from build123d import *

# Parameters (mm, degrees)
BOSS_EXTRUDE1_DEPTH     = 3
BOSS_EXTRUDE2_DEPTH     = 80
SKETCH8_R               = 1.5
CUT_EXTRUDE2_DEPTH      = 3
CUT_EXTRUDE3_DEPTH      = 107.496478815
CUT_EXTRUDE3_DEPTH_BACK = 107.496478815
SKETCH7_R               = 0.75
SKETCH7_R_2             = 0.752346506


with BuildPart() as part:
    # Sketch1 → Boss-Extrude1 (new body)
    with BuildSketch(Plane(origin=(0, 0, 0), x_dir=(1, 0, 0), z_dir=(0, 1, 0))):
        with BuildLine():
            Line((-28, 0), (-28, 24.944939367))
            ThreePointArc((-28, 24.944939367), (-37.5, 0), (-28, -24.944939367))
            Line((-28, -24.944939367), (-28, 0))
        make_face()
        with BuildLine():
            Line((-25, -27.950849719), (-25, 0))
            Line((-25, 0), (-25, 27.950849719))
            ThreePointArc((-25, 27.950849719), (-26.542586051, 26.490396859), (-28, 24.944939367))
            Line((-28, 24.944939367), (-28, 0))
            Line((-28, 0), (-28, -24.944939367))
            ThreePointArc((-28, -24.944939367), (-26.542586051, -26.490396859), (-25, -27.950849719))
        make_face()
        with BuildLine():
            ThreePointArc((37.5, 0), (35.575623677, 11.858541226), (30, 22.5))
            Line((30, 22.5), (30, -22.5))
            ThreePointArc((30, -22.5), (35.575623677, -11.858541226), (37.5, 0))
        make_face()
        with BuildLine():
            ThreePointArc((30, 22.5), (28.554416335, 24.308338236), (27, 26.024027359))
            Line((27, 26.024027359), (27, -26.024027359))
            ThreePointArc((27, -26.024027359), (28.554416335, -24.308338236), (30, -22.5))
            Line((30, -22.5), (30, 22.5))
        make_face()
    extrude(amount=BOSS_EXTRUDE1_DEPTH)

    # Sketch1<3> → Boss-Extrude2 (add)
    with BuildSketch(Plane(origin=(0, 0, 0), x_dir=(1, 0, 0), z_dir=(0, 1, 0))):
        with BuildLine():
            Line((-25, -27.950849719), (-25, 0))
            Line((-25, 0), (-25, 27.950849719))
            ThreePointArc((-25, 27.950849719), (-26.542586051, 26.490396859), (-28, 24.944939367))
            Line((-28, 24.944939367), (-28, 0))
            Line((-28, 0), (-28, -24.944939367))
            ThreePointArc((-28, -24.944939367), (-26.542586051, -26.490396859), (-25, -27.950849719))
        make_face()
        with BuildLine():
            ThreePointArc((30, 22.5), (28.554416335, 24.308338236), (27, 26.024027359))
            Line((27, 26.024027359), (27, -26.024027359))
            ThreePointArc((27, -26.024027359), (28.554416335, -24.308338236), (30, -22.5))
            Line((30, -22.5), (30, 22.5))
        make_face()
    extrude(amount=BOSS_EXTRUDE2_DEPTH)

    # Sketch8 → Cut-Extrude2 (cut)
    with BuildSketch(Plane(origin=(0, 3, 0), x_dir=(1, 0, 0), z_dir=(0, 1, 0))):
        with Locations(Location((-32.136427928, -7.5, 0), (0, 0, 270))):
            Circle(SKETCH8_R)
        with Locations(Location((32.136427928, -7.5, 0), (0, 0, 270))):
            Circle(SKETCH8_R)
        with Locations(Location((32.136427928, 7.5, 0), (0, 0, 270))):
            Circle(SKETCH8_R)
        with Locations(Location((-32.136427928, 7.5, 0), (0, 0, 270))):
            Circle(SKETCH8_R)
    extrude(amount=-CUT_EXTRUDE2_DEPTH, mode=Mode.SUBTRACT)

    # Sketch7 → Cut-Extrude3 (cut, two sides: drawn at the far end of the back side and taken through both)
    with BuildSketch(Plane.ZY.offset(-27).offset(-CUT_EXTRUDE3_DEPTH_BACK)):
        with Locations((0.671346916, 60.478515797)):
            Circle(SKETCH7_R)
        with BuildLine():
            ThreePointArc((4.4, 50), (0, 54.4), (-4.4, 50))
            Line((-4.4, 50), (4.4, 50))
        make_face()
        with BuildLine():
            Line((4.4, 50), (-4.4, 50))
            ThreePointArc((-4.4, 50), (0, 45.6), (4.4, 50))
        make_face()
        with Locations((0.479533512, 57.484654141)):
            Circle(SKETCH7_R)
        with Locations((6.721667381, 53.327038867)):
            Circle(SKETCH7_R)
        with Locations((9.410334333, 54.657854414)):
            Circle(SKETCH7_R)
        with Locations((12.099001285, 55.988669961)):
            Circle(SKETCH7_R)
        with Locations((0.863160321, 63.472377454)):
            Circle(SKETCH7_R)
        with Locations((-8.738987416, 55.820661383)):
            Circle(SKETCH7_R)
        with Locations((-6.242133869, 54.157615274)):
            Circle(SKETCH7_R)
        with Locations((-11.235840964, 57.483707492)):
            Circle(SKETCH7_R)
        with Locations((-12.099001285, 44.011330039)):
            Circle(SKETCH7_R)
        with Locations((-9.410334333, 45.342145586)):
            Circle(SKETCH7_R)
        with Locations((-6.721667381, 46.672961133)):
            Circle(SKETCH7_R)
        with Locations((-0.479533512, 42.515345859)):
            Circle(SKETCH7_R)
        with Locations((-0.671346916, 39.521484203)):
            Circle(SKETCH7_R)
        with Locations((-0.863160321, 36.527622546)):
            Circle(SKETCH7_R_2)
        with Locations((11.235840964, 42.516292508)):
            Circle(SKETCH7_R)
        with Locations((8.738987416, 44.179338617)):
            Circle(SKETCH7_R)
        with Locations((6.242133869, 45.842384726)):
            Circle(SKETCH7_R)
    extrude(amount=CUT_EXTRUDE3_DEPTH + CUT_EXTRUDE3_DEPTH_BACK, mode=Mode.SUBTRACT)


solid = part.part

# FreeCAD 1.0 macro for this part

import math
import FreeCAD as App
import Part
import Sketcher

doc = App.newDocument("Part")
body = doc.addObject("PartDesign::Body", "Body")
body.AllowCompound = True

sketch1 = body.newObject("Sketcher::SketchObject", "Sketch")
sketch1.AttachmentSupport = (doc.getObject("XZ_Plane"), [""])
sketch1.MapMode = "FlatFace"
sketch1.addGeometry(Part.ArcOfCircle(Part.Circle(App.Vector(0, 0, 0), App.Vector(0, 0, 1), 37.5), math.radians(138.302453), math.radians(221.697547)), False)
sketch1.addGeometry(Part.ArcOfCircle(Part.Circle(App.Vector(0, 0, 0), App.Vector(0, 0, 1), 37.5), math.radians(131.810315), math.radians(138.302453)), False)
sketch1.addGeometry(Part.LineSegment(App.Vector(-25, 27.95085, 0), App.Vector(-25, -27.95085, 0)), False)
sketch1.addGeometry(Part.ArcOfCircle(Part.Circle(App.Vector(0, 0, 0), App.Vector(0, 0, 1), 37.5), math.radians(-138.302453), math.radians(-131.810315)), False)
sketch1.addGeometry(Part.ArcOfCircle(Part.Circle(App.Vector(0, 0, 0), App.Vector(0, 0, 1), 37.5), math.radians(-36.869898), math.radians(0)), False)
sketch1.addGeometry(Part.ArcOfCircle(Part.Circle(App.Vector(0, 0, 0), App.Vector(0, 0, 1), 37.5), math.radians(-43.94552), math.radians(-36.869898)), False)
sketch1.addGeometry(Part.LineSegment(App.Vector(27, -26.024027, 0), App.Vector(27, 26.024027, 0)), False)
sketch1.addGeometry(Part.ArcOfCircle(Part.Circle(App.Vector(0, 0, 0), App.Vector(0, 0, 1), 37.5), math.radians(36.869898), math.radians(43.94552)), False)
sketch1.addGeometry(Part.ArcOfCircle(Part.Circle(App.Vector(0, 0, 0), App.Vector(0, 0, 1), 37.5), math.radians(0), math.radians(36.869898)), False)
sketch1.addConstraint(Sketcher.Constraint("Tangent", 0, 1, 1, 2))
sketch1.addConstraint(Sketcher.Constraint("Coincident", 1, 1, 2, 1))
sketch1.addConstraint(Sketcher.Constraint("Coincident", 2, 2, 3, 2))
sketch1.addConstraint(Sketcher.Constraint("Tangent", 3, 1, 0, 2))
sketch1.addConstraint(Sketcher.Constraint("Tangent", 4, 1, 5, 2))
sketch1.addConstraint(Sketcher.Constraint("Coincident", 5, 1, 6, 1))
sketch1.addConstraint(Sketcher.Constraint("Coincident", 6, 2, 7, 2))
sketch1.addConstraint(Sketcher.Constraint("Tangent", 7, 1, 8, 2))
sketch1.addConstraint(Sketcher.Constraint("Tangent", 8, 1, 4, 2))
sketch1.addConstraint(Sketcher.Constraint("Vertical", 2))
sketch1.addConstraint(Sketcher.Constraint("Vertical", 6))
sketch1.addConstraint(Sketcher.Constraint("Coincident", 0, 3, -1, 1))
sketch1.addConstraint(Sketcher.Constraint("Coincident", 4, 3, -1, 1))
sketch1.addConstraint(Sketcher.Constraint("Coincident", 7, 3, -1, 1))
sketch1.addConstraint(Sketcher.Constraint("Equal", 0, 1))
sketch1.addConstraint(Sketcher.Constraint("Equal", 1, 3))
sketch1.addConstraint(Sketcher.Constraint("Equal", 3, 4))
sketch1.addConstraint(Sketcher.Constraint("Equal", 4, 5))
sketch1.addConstraint(Sketcher.Constraint("PointOnObject", 8, 1, -1))
sketch1.addConstraint(Sketcher.Constraint("Vertical", 0, 1, 3, 1))
sketch1.addConstraint(Sketcher.Constraint("Vertical", 4, 1, 7, 1))
sketch1.addConstraint(Sketcher.Constraint("Radius", 0, 37.5))
sketch1.addConstraint(Sketcher.Constraint("DistanceX", 0, 1, -1, 1, 28.0))
sketch1.addConstraint(Sketcher.Constraint("DistanceX", 1, 1, -1, 1, 25.0))
sketch1.addConstraint(Sketcher.Constraint("DistanceX", -1, 1, 4, 1, 30.0))
sketch1.addConstraint(Sketcher.Constraint("DistanceX", -1, 1, 5, 1, 27.0))
pad1 = body.newObject("PartDesign::Pad", "Pad")
pad1.Profile = sketch1
pad1.Length = 3
pad1.Reversed = True

sketch2 = body.newObject("Sketcher::SketchObject", "Sketch001")
sketch2.AttachmentSupport = (doc.getObject("XZ_Plane"), [""])
sketch2.MapMode = "FlatFace"
sketch2.addGeometry(Part.LineSegment(App.Vector(-25, 27.95085, 0), App.Vector(-25, -27.95085, 0)), False)
sketch2.addGeometry(Part.ArcOfCircle(Part.Circle(App.Vector(0, 0, 0), App.Vector(0, 0, 1), 37.5), math.radians(-138.302453), math.radians(-131.810315)), False)
sketch2.addGeometry(Part.LineSegment(App.Vector(-28, -24.944939, 0), App.Vector(-28, 24.944939, 0)), False)
sketch2.addGeometry(Part.ArcOfCircle(Part.Circle(App.Vector(0, 0, 0), App.Vector(0, 0, 1), 37.5), math.radians(131.810315), math.radians(138.302453)), False)
sketch2.addGeometry(Part.ArcOfCircle(Part.Circle(App.Vector(0, 0, 0), App.Vector(0, 0, 1), 37.5), math.radians(-43.94552), math.radians(-36.869898)), False)
sketch2.addGeometry(Part.LineSegment(App.Vector(27, -26.024027, 0), App.Vector(27, 26.024027, 0)), False)
sketch2.addGeometry(Part.ArcOfCircle(Part.Circle(App.Vector(0, 0, 0), App.Vector(0, 0, 1), 37.5), math.radians(36.869898), math.radians(43.94552)), False)
sketch2.addGeometry(Part.LineSegment(App.Vector(30, 22.5, 0), App.Vector(30, -22.5, 0)), False)
sketch2.addConstraint(Sketcher.Constraint("Coincident", 0, 2, 1, 2))
sketch2.addConstraint(Sketcher.Constraint("Coincident", 1, 1, 2, 1))
sketch2.addConstraint(Sketcher.Constraint("Coincident", 2, 2, 3, 2))
sketch2.addConstraint(Sketcher.Constraint("Coincident", 3, 1, 0, 1))
sketch2.addConstraint(Sketcher.Constraint("Coincident", 4, 1, 5, 1))
sketch2.addConstraint(Sketcher.Constraint("Coincident", 5, 2, 6, 2))
sketch2.addConstraint(Sketcher.Constraint("Coincident", 6, 1, 7, 1))
sketch2.addConstraint(Sketcher.Constraint("Coincident", 7, 2, 4, 2))
sketch2.addConstraint(Sketcher.Constraint("Vertical", 0))
sketch2.addConstraint(Sketcher.Constraint("Vertical", 2))
sketch2.addConstraint(Sketcher.Constraint("Vertical", 5))
sketch2.addConstraint(Sketcher.Constraint("Vertical", 7))
sketch2.addConstraint(Sketcher.Constraint("Coincident", 1, 3, -1, 1))
sketch2.addConstraint(Sketcher.Constraint("Coincident", 3, 3, -1, 1))
sketch2.addConstraint(Sketcher.Constraint("Coincident", 4, 3, -1, 1))
sketch2.addConstraint(Sketcher.Constraint("Coincident", 6, 3, -1, 1))
sketch2.addConstraint(Sketcher.Constraint("Equal", 1, 3))
sketch2.addConstraint(Sketcher.Constraint("Equal", 3, 4))
sketch2.addConstraint(Sketcher.Constraint("Equal", 4, 6))
sketch2.addConstraint(Sketcher.Constraint("Radius", 1, 37.5))
sketch2.addConstraint(Sketcher.Constraint("DistanceY", 7, 2, 7, 1, 45.0))
sketch2.addConstraint(Sketcher.Constraint("DistanceX", 0, 2, -1, 1, 25.0))
sketch2.addConstraint(Sketcher.Constraint("DistanceX", 1, 1, -1, 1, 28.0))
sketch2.addConstraint(Sketcher.Constraint("DistanceX", -1, 1, 4, 1, 27.0))
pad2 = body.newObject("PartDesign::Pad", "Pad001")
pad2.Profile = sketch2
pad2.Length = 80
pad2.Reversed = True

sketch3 = body.newObject("Sketcher::SketchObject", "Sketch002")
sketch3.AttachmentSupport = (doc.getObject("XZ_Plane"), [""])
sketch3.MapMode = "FlatFace"
sketch3.AttachmentOffset = App.Placement(App.Vector(0, 0, -3), App.Rotation())
sketch3.addGeometry(Part.Circle(App.Vector(-32.136428, 7.5, 0), App.Vector(0, 0, 1), 1.5), False)
sketch3.addGeometry(Part.Circle(App.Vector(32.136428, 7.5, 0), App.Vector(0, 0, 1), 1.5), False)
sketch3.addGeometry(Part.Circle(App.Vector(32.136428, -7.5, 0), App.Vector(0, 0, 1), 1.5), False)
sketch3.addGeometry(Part.Circle(App.Vector(-32.136428, -7.5, 0), App.Vector(0, 0, 1), 1.5), False)
sketch3.addConstraint(Sketcher.Constraint("Equal", 0, 1))
sketch3.addConstraint(Sketcher.Constraint("Equal", 1, 2))
sketch3.addConstraint(Sketcher.Constraint("Equal", 2, 3))
sketch3.addConstraint(Sketcher.Constraint("Symmetric", 0, 3, 2, 3, -1, 1))
sketch3.addConstraint(Sketcher.Constraint("Symmetric", 1, 3, 3, 3, -1, 1))
sketch3.addConstraint(Sketcher.Constraint("Symmetric", 0, 3, 1, 3, -2))
sketch3.addConstraint(Sketcher.Constraint("Diameter", 0, 3.0))
sketch3.addConstraint(Sketcher.Constraint("DistanceY", 2, 3, 1, 3, 15.0))
sketch3.addConstraint(Sketcher.Constraint("DistanceX", 0, 3, -1, 1, 32.136428))
pocket1 = body.newObject("PartDesign::Pocket", "Pocket")
pocket1.Profile = sketch3
pocket1.Length = 3
pocket1.Reversed = True

sketch4 = body.newObject("Sketcher::SketchObject", "Sketch003")
sketch4.AttachmentSupport = (doc.getObject("YZ_Plane"), [""])
sketch4.MapMode = "FlatFace"
sketch4.AttachmentOffset = App.Placement(App.Vector(0, 0, 27), App.Rotation())
sketch4.addGeometry(Part.Circle(App.Vector(60.478516, 0.671347, 0), App.Vector(0, 0, 1), 0.75), False)
sketch4.addGeometry(Part.Circle(App.Vector(50, 0, 0), App.Vector(0, 0, 1), 4.4), False)
sketch4.addGeometry(Part.Circle(App.Vector(57.484654, 0.479534, 0), App.Vector(0, 0, 1), 0.75), False)
sketch4.addGeometry(Part.Circle(App.Vector(53.327039, 6.721667, 0), App.Vector(0, 0, 1), 0.75), False)
sketch4.addGeometry(Part.Circle(App.Vector(54.657854, 9.410334, 0), App.Vector(0, 0, 1), 0.75), False)
sketch4.addGeometry(Part.Circle(App.Vector(55.98867, 12.099001, 0), App.Vector(0, 0, 1), 0.75), False)
sketch4.addGeometry(Part.Circle(App.Vector(63.472377, 0.86316, 0), App.Vector(0, 0, 1), 0.75), False)
sketch4.addGeometry(Part.Circle(App.Vector(55.820661, -8.738987, 0), App.Vector(0, 0, 1), 0.75), False)
sketch4.addGeometry(Part.Circle(App.Vector(54.157615, -6.242134, 0), App.Vector(0, 0, 1), 0.75), False)
sketch4.addGeometry(Part.Circle(App.Vector(57.483707, -11.235841, 0), App.Vector(0, 0, 1), 0.75), False)
sketch4.addGeometry(Part.Circle(App.Vector(44.01133, -12.099001, 0), App.Vector(0, 0, 1), 0.75), False)
sketch4.addGeometry(Part.Circle(App.Vector(45.342146, -9.410334, 0), App.Vector(0, 0, 1), 0.75), False)
sketch4.addGeometry(Part.Circle(App.Vector(46.672961, -6.721667, 0), App.Vector(0, 0, 1), 0.75), False)
sketch4.addGeometry(Part.Circle(App.Vector(42.515346, -0.479534, 0), App.Vector(0, 0, 1), 0.75), False)
sketch4.addGeometry(Part.Circle(App.Vector(39.521484, -0.671347, 0), App.Vector(0, 0, 1), 0.75), False)
sketch4.addGeometry(Part.Circle(App.Vector(36.527623, -0.86316, 0), App.Vector(0, 0, 1), 0.752347), False)
sketch4.addGeometry(Part.Circle(App.Vector(42.516293, 11.235841, 0), App.Vector(0, 0, 1), 0.75), False)
sketch4.addGeometry(Part.Circle(App.Vector(44.179339, 8.738987, 0), App.Vector(0, 0, 1), 0.75), False)
sketch4.addGeometry(Part.Circle(App.Vector(45.842385, 6.242134, 0), App.Vector(0, 0, 1), 0.75), False)
sketch4.addConstraint(Sketcher.Constraint("Equal", 0, 2))
sketch4.addConstraint(Sketcher.Constraint("Equal", 2, 3))
sketch4.addConstraint(Sketcher.Constraint("Equal", 3, 4))
sketch4.addConstraint(Sketcher.Constraint("Equal", 4, 5))
sketch4.addConstraint(Sketcher.Constraint("Equal", 5, 6))
sketch4.addConstraint(Sketcher.Constraint("Equal", 6, 7))
sketch4.addConstraint(Sketcher.Constraint("Equal", 7, 8))
sketch4.addConstraint(Sketcher.Constraint("Equal", 8, 9))
sketch4.addConstraint(Sketcher.Constraint("Equal", 9, 10))
sketch4.addConstraint(Sketcher.Constraint("Equal", 10, 11))
sketch4.addConstraint(Sketcher.Constraint("Equal", 11, 12))
sketch4.addConstraint(Sketcher.Constraint("Equal", 12, 13))
sketch4.addConstraint(Sketcher.Constraint("Equal", 13, 14))
sketch4.addConstraint(Sketcher.Constraint("Equal", 14, 16))
sketch4.addConstraint(Sketcher.Constraint("Equal", 16, 17))
sketch4.addConstraint(Sketcher.Constraint("Equal", 17, 18))
sketch4.addConstraint(Sketcher.Constraint("PointOnObject", 1, 3, -1))
sketch4.addConstraint(Sketcher.Constraint("Diameter", 0, 1.5))
sketch4.addConstraint(Sketcher.Constraint("Diameter", 1, 8.8))
sketch4.addConstraint(Sketcher.Constraint("DistanceX", -1, 1, 1, 3, 50.0))
sketch4.addConstraint(Sketcher.Constraint("Diameter", 15, 1.504693))
sketch4.addConstraint(Sketcher.Constraint("DistanceY", -1, 1, 5, 3, 12.099001))
sketch4.addConstraint(Sketcher.Constraint("DistanceY", 10, 3, -1, 1, 12.099001))
sketch4.addConstraint(Sketcher.Constraint("DistanceX", 4, 3, 2, 3, 2.8268))
sketch4.addConstraint(Sketcher.Constraint("DistanceY", 2, 3, 4, 3, 8.930801))
sketch4.addConstraint(Sketcher.Constraint("DistanceX", 8, 3, 0, 3, 6.320901))
sketch4.addConstraint(Sketcher.Constraint("DistanceY", 11, 3, 8, 3, 3.1682))
sketch4.addConstraint(Sketcher.Constraint("DistanceX", 12, 3, 7, 3, 9.1477))
sketch4.addConstraint(Sketcher.Constraint("DistanceX", 13, 3, 11, 3, 2.8268))
sketch4.addConstraint(Sketcher.Constraint("DistanceY", 11, 3, 13, 3, 8.930801))
sketch4.addConstraint(Sketcher.Constraint("DistanceY", 13, 3, 3, 3, 7.201201))
sketch4.addConstraint(Sketcher.Constraint("DistanceX", 17, 3, 3, 3, 9.1477))
sketch4.addConstraint(Sketcher.Constraint("DistanceX", -1, 1, 3, 3, 53.327039))
sketch4.addConstraint(Sketcher.Constraint("DistanceX", -1, 1, 5, 3, 55.98867))
sketch4.addConstraint(Sketcher.Constraint("DistanceY", -1, 1, 6, 3, 0.86316))
sketch4.addConstraint(Sketcher.Constraint("DistanceX", -1, 1, 7, 3, 55.820661))
sketch4.addConstraint(Sketcher.Constraint("DistanceY", 9, 3, -1, 1, 11.235841))
sketch4.addConstraint(Sketcher.Constraint("DistanceX", -1, 1, 10, 3, 44.01133))
sketch4.addConstraint(Sketcher.Constraint("DistanceY", 15, 3, -1, 1, 0.86316))
sketch4.addConstraint(Sketcher.Constraint("DistanceY", -1, 1, 16, 3, 11.235841))
sketch4.addConstraint(Sketcher.Constraint("DistanceX", 2, 3, 0, 3, 2.993862))
sketch4.addConstraint(Sketcher.Constraint("DistanceY", 0, 3, 3, 3, 6.05032))
sketch4.addConstraint(Sketcher.Constraint("DistanceX", 0, 3, 6, 3, 2.993862))
sketch4.addConstraint(Sketcher.Constraint("DistanceX", 3, 3, 6, 3, 10.145339))
sketch4.addConstraint(Sketcher.Constraint("DistanceY", 7, 3, 2, 3, 9.218521))
sketch4.addConstraint(Sketcher.Constraint("DistanceX", 9, 3, 0, 3, 2.994808))
sketch4.addConstraint(Sketcher.Constraint("DistanceX", 11, 3, 8, 3, 8.81547))
sketch4.addConstraint(Sketcher.Constraint("DistanceY", 7, 3, 12, 3, 2.01732))
sketch4.addConstraint(Sketcher.Constraint("DistanceX", 14, 3, 13, 3, 2.993862))
sketch4.addConstraint(Sketcher.Constraint("DistanceY", 12, 3, 14, 3, 6.05032))
sketch4.addConstraint(Sketcher.Constraint("DistanceX", 15, 3, 14, 3, 2.993862))
sketch4.addConstraint(Sketcher.Constraint("DistanceX", 16, 3, 4, 3, 12.141562))
sketch4.addConstraint(Sketcher.Constraint("DistanceY", 3, 3, 17, 3, 2.01732))
sketch4.addConstraint(Sketcher.Constraint("DistanceX", 13, 3, 18, 3, 3.327039))
sketch4.addConstraint(Sketcher.Constraint("DistanceY", -1, 1, 0, 3, 0.671347))
sketch4.addConstraint(Sketcher.Constraint("DistanceY", -1, 1, 2, 3, 0.479534))
sketch4.addConstraint(Sketcher.Constraint("DistanceY", -1, 1, 18, 3, 6.242134))
pocket2 = body.newObject("PartDesign::Pocket", "Pocket001")
pocket2.Profile = sketch4
pocket2.Type = "ThroughAll"
pocket2.Midplane = True

doc.recompute()
